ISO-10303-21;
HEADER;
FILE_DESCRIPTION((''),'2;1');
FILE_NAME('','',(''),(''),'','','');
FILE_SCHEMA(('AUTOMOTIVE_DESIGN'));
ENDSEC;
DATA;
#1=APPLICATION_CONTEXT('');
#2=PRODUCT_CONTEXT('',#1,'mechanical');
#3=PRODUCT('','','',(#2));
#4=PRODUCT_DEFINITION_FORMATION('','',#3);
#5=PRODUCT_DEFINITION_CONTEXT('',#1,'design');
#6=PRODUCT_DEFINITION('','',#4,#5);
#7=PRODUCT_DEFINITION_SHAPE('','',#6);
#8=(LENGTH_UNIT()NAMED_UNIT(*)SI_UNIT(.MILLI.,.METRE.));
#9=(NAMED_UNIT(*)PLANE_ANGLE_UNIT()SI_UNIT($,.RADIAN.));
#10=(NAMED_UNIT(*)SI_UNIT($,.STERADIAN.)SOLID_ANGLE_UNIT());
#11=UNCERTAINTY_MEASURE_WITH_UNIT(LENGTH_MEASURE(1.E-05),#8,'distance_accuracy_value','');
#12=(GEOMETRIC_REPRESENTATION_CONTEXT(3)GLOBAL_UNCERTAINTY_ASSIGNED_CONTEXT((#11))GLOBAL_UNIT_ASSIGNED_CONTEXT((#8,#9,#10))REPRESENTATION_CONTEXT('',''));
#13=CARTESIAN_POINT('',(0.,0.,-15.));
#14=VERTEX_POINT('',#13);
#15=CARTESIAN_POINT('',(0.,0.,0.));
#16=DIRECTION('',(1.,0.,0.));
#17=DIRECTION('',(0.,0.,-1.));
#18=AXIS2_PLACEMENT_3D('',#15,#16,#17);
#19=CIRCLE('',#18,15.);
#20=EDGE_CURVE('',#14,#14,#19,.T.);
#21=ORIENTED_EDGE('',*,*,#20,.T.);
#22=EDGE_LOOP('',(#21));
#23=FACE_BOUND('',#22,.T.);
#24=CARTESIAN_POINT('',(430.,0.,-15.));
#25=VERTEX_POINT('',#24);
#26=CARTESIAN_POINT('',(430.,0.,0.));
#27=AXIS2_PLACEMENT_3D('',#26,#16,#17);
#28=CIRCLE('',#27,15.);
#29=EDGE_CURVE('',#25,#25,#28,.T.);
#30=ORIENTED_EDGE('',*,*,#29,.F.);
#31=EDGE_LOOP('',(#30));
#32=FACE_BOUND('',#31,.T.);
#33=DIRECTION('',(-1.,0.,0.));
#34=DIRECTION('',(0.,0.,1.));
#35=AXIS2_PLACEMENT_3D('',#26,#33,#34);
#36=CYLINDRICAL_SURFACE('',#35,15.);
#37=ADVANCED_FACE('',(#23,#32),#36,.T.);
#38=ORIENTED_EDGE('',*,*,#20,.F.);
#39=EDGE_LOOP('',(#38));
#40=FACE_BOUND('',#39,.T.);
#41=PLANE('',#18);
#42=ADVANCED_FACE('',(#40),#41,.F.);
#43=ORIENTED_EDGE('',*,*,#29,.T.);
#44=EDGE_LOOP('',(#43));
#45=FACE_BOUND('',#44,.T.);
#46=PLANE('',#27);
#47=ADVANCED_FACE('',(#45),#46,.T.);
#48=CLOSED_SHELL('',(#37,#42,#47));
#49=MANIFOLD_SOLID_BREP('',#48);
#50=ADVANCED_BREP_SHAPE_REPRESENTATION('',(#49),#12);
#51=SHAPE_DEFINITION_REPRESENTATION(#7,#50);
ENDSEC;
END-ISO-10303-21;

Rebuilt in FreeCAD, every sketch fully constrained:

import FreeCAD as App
import Part
import Sketcher

V = App.Vector
Q = App.Units.Quantity

doc = App.newDocument("Part")
params = doc.addObject("Spreadsheet::Sheet", "Params")
for row, (alias, value) in enumerate([
    ("sketch1_diameter", "30 mm"),
    ("pad1_length", "430 mm"),
], start=1):
    params.set(f"A{row}", alias)
    params.set(f"B{row}", "=" + value)
    params.setAlias(f"B{row}", alias)

body = doc.addObject("PartDesign::Body", "Body")

sketch1 = body.newObject("Sketcher::SketchObject", "Sketch")
sketch1.AttachmentSupport = (doc.getObject("YZ_Plane"), [""])
sketch1.MapMode = "FlatFace"
sketch1.addGeometry(Part.Circle(V(0, 0, 0), V(0, 0, 1), 15), False)
sketch1.addConstraint([
    Sketcher.Constraint("Coincident", 0, 3, -1, 1),
    Sketcher.Constraint("Diameter", 0, Q("30 mm")),
])
sketch1.setExpression("Constraints[1]", "Params.sketch1_diameter")
pad1 = body.newObject("PartDesign::Pad", "Pad")
pad1.Profile = sketch1
pad1.setExpression("Length", "Params.pad1_length")

doc.recompute()
